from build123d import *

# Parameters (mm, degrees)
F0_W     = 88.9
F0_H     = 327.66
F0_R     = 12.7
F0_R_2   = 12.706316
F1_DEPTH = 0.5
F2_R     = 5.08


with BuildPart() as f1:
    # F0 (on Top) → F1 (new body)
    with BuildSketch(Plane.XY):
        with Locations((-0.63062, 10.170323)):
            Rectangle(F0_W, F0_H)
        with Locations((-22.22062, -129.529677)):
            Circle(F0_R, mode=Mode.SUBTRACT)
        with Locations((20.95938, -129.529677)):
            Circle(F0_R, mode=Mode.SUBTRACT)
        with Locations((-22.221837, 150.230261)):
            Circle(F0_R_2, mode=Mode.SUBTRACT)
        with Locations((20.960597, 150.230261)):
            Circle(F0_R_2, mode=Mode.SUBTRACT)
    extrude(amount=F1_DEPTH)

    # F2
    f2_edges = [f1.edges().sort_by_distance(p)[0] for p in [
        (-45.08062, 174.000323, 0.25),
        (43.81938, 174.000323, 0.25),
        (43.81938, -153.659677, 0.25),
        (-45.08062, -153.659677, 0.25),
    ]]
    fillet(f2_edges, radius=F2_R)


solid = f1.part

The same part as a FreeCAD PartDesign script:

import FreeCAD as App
import Part
import Sketcher
from FreeCAD import Vector
Q = App.Units.Quantity


def edges_at(feature, points):
    """Names of the edges that pass closest to the given points."""
    edges = feature.Shape.Edges
    near = lambda p: min(range(len(edges)), key=lambda i: edges[i].distToShape(Part.Vertex(*p))[0])
    return sorted({f"Edge{near(p) + 1}" for p in points})

doc = App.newDocument("Part")
params = doc.addObject("Spreadsheet::Sheet", "Params")
for row, (alias, value) in enumerate([
    ("sketch1_diameter", "1 in"),
    ("sketch1_width", "3.5 in"),
    ("sketch1_height", "12.9 in"),
    ("pad1_length", "0.5 mm"),
    ("fillet_radius", "0.2 in"),
], start=1):
    params.set(f"A{row}", alias)
    params.set(f"B{row}", "=" + value)
    params.setAlias(f"B{row}", alias)

body = doc.addObject("PartDesign::Body", "Body")

sketch1 = body.newObject("Sketcher::SketchObject", "Sketch")
sketch1.AttachmentSupport = (doc.getObject("XY_Plane"), [""])
sketch1.MapMode = "FlatFace"
sketch1.addGeometry([
    Part.LineSegment(Vector(-45, 174, 0), Vector(-45, -154, 0)),
    Part.LineSegment(Vector(-45, -154, 0), Vector(44, -154, 0)),
    Part.LineSegment(Vector(44, -154, 0), Vector(44, 174, 0)),
    Part.LineSegment(Vector(44, 174, 0), Vector(-45, 174, 0)),
    Part.Circle(Vector(-22, -130, 0), Vector(0, 0, 1), 13),
    Part.Circle(Vector(21, -130, 0), Vector(0, 0, 1), 13),
    Part.Circle(Vector(-22, 150, 0), Vector(0, 0, 1), 13),
    Part.Circle(Vector(21, 150, 0), Vector(0, 0, 1), 13),
], False)
sketch1.addConstraint([
    Sketcher.Constraint("Coincident", 0, 2, 1, 1),
    Sketcher.Constraint("Coincident", 1, 2, 2, 1),
    Sketcher.Constraint("Coincident", 2, 2, 3, 1),
    Sketcher.Constraint("Coincident", 3, 2, 0, 1),
    Sketcher.Constraint("Vertical", 0),
    Sketcher.Constraint("Horizontal", 1),
    Sketcher.Constraint("Vertical", 2),
    Sketcher.Constraint("Horizontal", 3),
    Sketcher.Constraint("Equal", 4, 5),
    Sketcher.Constraint("Equal", 6, 7),
    Sketcher.Constraint("Horizontal", 4, 3, 5, 3),
    Sketcher.Constraint("Horizontal", 6, 3, 7, 3),
    Sketcher.Constraint("Diameter", 4, Q("1 in")),
    Sketcher.Constraint("DistanceX", 1, 1, 1, 2, Q("3.5 in")),
    Sketcher.Constraint("DistanceY", 0, 2, 0, 1, Q("12.9 in")),
    Sketcher.Constraint("DistanceX", 4, 3, 5, 3, Q("1.7 in")),
    Sketcher.Constraint("DistanceX", 0, 2, 4, 3, Q("0.9 in")),
    Sketcher.Constraint("DistanceY", 0, 2, 4, 3, Q("0.95 in")),
    Sketcher.Constraint("Diameter", 6, 25.412632),
    Sketcher.Constraint("DistanceX", 4, 3, -1, 1, 22.22062),
    Sketcher.Constraint("DistanceY", -1, 1, 6, 3, 150.230261),
    Sketcher.Constraint("DistanceY", 4, 3, 6, 3, 279.759938),
    Sketcher.Constraint("DistanceX", 6, 3, -1, 1, 22.221837),
    Sketcher.Constraint("DistanceX", -1, 1, 7, 3, 20.960597),
])
sketch1.setExpression("Constraints[12]", "Params.sketch1_diameter")
sketch1.setExpression("Constraints[13]", "Params.sketch1_width")
sketch1.setExpression("Constraints[14]", "Params.sketch1_height")
pad1 = body.newObject("PartDesign::Pad", "Pad")
pad1.Profile = sketch1
pad1.setExpression("Length", "Params.pad1_length")
doc.recompute()

fillet = body.newObject("PartDesign::Fillet", "Fillet")
fillet.Base = (pad1, edges_at(pad1, [
    (-45.081, 174, 0.25),
    (43.819, 174, 0.25),
    (43.819, -153.66, 0.25),
    (-45.081, -153.66, 0.25),
]))
fillet.setExpression("Radius", "Params.fillet_radius")

doc.recompute()
